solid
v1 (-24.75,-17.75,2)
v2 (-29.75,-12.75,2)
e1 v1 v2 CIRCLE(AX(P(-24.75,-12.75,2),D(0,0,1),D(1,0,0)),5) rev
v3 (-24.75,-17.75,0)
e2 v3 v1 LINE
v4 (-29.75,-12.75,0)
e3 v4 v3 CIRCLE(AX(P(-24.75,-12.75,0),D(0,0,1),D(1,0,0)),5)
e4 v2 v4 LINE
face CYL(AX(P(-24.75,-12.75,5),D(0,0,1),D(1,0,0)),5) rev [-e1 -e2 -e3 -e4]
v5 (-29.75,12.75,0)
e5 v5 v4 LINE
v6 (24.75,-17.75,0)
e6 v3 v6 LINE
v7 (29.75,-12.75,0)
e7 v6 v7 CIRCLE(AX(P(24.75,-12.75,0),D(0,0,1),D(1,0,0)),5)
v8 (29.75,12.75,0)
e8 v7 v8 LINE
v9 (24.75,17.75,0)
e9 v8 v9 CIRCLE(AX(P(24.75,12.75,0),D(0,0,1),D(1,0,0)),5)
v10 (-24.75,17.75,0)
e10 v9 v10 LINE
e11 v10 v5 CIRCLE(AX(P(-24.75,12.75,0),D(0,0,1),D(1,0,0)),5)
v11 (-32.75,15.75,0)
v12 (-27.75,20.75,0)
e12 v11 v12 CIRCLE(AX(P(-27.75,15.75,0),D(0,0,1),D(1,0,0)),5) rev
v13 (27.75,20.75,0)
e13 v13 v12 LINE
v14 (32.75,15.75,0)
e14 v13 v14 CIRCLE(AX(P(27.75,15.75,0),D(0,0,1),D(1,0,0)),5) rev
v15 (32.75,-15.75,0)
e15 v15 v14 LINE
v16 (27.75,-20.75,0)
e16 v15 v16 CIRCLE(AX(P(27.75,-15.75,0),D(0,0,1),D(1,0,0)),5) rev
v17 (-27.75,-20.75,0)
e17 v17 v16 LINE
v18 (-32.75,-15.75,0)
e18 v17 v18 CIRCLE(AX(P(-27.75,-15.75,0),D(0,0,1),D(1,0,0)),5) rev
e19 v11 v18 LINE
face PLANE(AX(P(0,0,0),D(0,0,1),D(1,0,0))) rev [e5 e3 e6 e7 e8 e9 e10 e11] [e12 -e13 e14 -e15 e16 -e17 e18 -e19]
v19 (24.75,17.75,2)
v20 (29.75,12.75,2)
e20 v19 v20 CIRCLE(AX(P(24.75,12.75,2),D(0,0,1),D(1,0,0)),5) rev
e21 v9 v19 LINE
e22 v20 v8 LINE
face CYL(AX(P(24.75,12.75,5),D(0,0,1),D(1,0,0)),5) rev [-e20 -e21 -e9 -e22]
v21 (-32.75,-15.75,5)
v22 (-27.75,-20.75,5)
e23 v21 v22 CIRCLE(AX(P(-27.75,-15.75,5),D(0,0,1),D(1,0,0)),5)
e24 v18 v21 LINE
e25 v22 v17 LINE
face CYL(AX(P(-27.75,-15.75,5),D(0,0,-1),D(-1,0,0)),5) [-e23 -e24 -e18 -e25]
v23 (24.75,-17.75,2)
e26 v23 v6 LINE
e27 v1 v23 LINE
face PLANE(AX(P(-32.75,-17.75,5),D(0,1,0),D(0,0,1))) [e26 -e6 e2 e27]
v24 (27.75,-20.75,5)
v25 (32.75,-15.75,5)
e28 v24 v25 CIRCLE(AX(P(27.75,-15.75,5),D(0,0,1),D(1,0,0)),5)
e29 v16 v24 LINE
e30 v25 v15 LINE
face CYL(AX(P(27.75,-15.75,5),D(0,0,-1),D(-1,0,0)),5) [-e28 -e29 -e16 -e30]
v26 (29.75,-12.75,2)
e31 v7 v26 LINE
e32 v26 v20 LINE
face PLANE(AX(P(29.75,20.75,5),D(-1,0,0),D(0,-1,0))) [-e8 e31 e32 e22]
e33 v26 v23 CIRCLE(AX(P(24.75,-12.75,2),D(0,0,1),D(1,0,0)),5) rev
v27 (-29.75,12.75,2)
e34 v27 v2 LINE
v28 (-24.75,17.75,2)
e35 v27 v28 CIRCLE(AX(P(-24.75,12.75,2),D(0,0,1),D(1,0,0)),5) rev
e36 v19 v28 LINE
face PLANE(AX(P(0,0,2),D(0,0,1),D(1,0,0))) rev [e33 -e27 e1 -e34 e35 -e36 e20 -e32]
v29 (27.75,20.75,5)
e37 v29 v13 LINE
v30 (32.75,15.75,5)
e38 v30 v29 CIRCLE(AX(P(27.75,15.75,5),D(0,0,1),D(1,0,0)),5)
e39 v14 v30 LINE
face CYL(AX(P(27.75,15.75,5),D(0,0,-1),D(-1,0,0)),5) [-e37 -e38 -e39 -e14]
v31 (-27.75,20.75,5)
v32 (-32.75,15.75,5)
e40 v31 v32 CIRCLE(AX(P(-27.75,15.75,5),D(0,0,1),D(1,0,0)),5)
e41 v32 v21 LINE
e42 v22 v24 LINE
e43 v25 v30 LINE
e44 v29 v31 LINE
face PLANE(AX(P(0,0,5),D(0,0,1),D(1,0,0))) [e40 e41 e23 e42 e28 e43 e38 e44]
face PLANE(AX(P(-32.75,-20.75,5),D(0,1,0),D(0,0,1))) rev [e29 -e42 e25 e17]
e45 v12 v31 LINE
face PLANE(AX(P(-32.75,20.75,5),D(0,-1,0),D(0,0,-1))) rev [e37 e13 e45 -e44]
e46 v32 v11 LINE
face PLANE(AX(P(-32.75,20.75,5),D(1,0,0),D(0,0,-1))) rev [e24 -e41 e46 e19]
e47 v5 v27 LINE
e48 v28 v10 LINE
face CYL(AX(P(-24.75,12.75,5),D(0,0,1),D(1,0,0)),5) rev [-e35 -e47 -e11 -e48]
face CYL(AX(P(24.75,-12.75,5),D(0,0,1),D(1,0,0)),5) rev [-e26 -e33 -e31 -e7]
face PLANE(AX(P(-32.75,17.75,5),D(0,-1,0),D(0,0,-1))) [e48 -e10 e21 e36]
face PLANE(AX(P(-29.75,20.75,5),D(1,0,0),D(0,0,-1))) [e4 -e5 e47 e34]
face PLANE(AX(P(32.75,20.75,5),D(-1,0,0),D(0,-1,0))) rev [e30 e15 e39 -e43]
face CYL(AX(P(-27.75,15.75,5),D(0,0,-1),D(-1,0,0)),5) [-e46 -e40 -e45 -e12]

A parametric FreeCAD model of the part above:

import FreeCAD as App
import Part
import Sketcher
from FreeCAD import Vector


def edges_at(feature, points):
    """Names of the edges that pass closest to the given points."""
    edges = feature.Shape.Edges
    near = lambda p: min(range(len(edges)), key=lambda i: edges[i].distToShape(Part.Vertex(*p))[0])
    return sorted({f"Edge{near(p) + 1}" for p in points})


def faces_at(feature, points):
    """Names of the faces that lie closest to the given points."""
    faces = feature.Shape.Faces
    near = lambda p: min(range(len(faces)), key=lambda i: faces[i].distToShape(Part.Vertex(*p))[0])
    return sorted({f"Face{near(p) + 1}" for p in points})


def add_polygon(sketch, points):
    """Adds a closed chain of lines whose ends are joined by coincident constraints."""
    first, n = sketch.GeometryCount, len(points)
    for a, b in zip(points, points[1:] + points[:1]):
        sketch.addGeometry(Part.LineSegment(App.Vector(*a, 0), App.Vector(*b, 0)), False)
    for i in range(n):
        sketch.addConstraint(Sketcher.Constraint("Coincident", first + i, 2, first + (i + 1) % n, 1))

doc = App.newDocument("Part")
body = doc.addObject("PartDesign::Body", "Body")

# Sketch on XY plane
sketch1 = body.newObject("Sketcher::SketchObject", "Sketch")
sketch1.AttachmentSupport = (doc.getObject("XY_Plane"), [""])
sketch1.MapMode = "FlatFace"
add_polygon(sketch1, [(-33, 21), (-33, -21), (33, -21), (33, 21)])  # lines 0-3
sketch1.addConstraint([
    Sketcher.Constraint("Vertical", 0),
    Sketcher.Constraint("Horizontal", 1),
    Sketcher.Constraint("Vertical", 2),
    Sketcher.Constraint("Horizontal", 3),
    Sketcher.Constraint("Symmetric", 0, 2, 2, 2, -1, 1),
    Sketcher.Constraint("DistanceX", 1, 1, 1, 2, 65.5),
    Sketcher.Constraint("DistanceY", 0, 2, 0, 1, 41.5),
])
pad1 = body.newObject("PartDesign::Pad", "Pad")
pad1.Profile = sketch1
pad1.Length = 5
doc.recompute()

thickness = body.newObject("PartDesign::Thickness", "Thickness")
thickness.Base = (pad1, faces_at(pad1, [(0, 0, 0)]))
thickness.Value = 3
thickness.Reversed = True
thickness.Join = "Intersection"
doc.recompute()

fillet = body.newObject("PartDesign::Fillet", "Fillet")
fillet.Base = (thickness, edges_at(thickness, [
    (29.75, -17.75, 1),
    (29.75, 17.75, 1),
    (-29.75, 17.75, 1),
    (-29.75, -17.75, 1),
    (32.75, -20.75, 2.5),
    (-32.75, -20.75, 2.5),
    (-32.75, 20.75, 2.5),
    (32.75, 20.75, 2.5),
]))
fillet.Radius = 5

doc.recompute()
